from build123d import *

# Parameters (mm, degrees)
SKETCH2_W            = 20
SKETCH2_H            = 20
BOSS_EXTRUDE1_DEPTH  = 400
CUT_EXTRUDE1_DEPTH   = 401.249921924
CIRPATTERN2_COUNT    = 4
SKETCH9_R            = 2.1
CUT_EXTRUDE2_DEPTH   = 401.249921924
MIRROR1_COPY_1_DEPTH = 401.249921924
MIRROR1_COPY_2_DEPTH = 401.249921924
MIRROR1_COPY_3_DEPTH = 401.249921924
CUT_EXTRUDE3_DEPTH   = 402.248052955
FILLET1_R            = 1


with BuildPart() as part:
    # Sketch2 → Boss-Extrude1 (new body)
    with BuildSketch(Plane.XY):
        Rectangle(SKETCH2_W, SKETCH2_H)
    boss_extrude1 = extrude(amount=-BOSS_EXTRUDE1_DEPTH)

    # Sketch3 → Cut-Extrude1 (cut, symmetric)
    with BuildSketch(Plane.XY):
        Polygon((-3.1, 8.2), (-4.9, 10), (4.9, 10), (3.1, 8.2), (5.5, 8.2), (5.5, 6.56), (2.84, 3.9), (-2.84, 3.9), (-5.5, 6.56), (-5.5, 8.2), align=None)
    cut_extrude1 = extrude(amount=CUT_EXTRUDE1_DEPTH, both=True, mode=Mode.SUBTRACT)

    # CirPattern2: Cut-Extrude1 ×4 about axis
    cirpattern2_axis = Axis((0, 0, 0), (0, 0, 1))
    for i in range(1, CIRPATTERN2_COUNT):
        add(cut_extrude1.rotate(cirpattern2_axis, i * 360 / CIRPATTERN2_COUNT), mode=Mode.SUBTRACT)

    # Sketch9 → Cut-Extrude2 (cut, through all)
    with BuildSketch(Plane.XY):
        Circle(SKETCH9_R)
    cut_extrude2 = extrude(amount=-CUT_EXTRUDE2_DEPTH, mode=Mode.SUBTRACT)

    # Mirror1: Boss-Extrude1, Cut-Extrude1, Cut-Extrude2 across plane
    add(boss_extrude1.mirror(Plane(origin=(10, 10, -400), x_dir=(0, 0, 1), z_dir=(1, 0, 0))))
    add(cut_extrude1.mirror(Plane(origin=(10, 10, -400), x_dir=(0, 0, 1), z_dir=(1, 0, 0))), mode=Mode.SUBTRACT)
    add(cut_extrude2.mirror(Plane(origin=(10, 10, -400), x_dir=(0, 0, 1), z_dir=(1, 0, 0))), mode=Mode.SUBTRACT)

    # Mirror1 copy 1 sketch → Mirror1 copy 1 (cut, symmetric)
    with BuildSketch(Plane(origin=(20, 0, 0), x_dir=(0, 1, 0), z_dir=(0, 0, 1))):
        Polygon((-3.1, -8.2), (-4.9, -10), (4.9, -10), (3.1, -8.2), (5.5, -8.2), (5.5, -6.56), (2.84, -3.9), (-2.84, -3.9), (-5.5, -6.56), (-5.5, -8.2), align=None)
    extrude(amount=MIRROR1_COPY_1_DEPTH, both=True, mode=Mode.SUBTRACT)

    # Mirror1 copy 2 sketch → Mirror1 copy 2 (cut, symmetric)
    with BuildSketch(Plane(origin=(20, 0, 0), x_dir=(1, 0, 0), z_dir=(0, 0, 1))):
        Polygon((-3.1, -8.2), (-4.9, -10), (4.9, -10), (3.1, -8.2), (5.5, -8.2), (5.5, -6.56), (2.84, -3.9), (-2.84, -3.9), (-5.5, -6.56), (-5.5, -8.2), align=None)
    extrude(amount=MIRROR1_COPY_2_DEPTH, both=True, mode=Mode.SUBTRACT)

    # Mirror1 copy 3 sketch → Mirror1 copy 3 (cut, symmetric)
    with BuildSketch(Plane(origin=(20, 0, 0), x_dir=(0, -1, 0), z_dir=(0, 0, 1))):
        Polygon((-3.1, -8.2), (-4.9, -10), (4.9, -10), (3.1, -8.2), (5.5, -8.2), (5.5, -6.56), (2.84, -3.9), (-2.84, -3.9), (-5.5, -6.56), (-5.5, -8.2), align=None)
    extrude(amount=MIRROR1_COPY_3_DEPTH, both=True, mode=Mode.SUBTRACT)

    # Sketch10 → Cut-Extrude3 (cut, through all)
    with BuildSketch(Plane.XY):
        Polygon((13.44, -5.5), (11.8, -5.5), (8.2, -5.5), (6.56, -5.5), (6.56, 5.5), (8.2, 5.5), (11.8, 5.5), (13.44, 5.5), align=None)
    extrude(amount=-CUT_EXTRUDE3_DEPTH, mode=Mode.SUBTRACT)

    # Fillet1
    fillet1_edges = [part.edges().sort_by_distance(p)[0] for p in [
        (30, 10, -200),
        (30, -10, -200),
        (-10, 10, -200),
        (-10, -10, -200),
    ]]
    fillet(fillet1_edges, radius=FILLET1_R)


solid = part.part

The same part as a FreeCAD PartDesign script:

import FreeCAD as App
import Part
import Sketcher
from FreeCAD import Vector
Q = App.Units.Quantity


def edges_at(feature, points):
    """Names of the edges that pass closest to the given points."""
    edges = feature.Shape.Edges
    near = lambda p: min(range(len(edges)), key=lambda i: edges[i].distToShape(Part.Vertex(*p))[0])
    return sorted({f"Edge{near(p) + 1}" for p in points})


def add_polygon(sketch, points):
    """Adds a closed chain of lines whose ends are joined by coincident constraints."""
    first, n = sketch.GeometryCount, len(points)
    for a, b in zip(points, points[1:] + points[:1]):
        sketch.addGeometry(Part.LineSegment(App.Vector(*a, 0), App.Vector(*b, 0)), False)
    for i in range(n):
        sketch.addConstraint(Sketcher.Constraint("Coincident", first + i, 2, first + (i + 1) % n, 1))

doc = App.newDocument("Part")
body = doc.addObject("PartDesign::Body", "Body")

# Sketch on XY plane
sketch1 = body.newObject("Sketcher::SketchObject", "Sketch")
sketch1.AttachmentSupport = (doc.getObject("XY_Plane"), [""])
sketch1.MapMode = "FlatFace"
add_polygon(sketch1, [(-10, 10), (-10, -10), (10, -10), (10, 10)])  # lines 0-3
sketch1.addConstraint(Sketcher.Constraint("Vertical", 0))
sketch1.addConstraint(Sketcher.Constraint("Horizontal", 1))
sketch1.addConstraint(Sketcher.Constraint("Vertical", 2))
sketch1.addConstraint(Sketcher.Constraint("Horizontal", 3))
sketch1.addConstraint(Sketcher.Constraint("Symmetric", 0, 2, 2, 2, -1, 1))
sketch1.addConstraint(Sketcher.Constraint("Equal", 3, 0))
sketch1.addConstraint(Sketcher.Constraint("DistanceX", 1, 1, 1, 2, Q("20 mm")))
pad1 = body.newObject("PartDesign::Pad", "Pad")
pad1.Profile = sketch1
pad1.Length = 400
pad1.Reversed = True

# Sketch on XY plane
sketch2 = body.newObject("Sketcher::SketchObject", "Sketch001")
sketch2.AttachmentSupport = (doc.getObject("XY_Plane"), [""])
sketch2.MapMode = "FlatFace"
add_polygon(sketch2, [(-4.9, 10), (-3.1, 8.2), (-5.5, 8.2), (-5.5, 6.6), (-2.8, 3.9), (2.8, 3.9), (5.5, 6.6), (5.5, 8.2), (3.1, 8.2), (4.9, 10)])  # lines 0-9
sketch2.addConstraint(Sketcher.Constraint("Horizontal", 1))
sketch2.addConstraint(Sketcher.Constraint("Vertical", 2))
sketch2.addConstraint(Sketcher.Constraint("Horizontal", 4))
sketch2.addConstraint(Sketcher.Constraint("Vertical", 6))
sketch2.addConstraint(Sketcher.Constraint("Horizontal", 7))
sketch2.addConstraint(Sketcher.Constraint("Horizontal", 9))
sketch2.addConstraint(Sketcher.Constraint("Symmetric", 2, 2, 5, 2, -2))
sketch2.addConstraint(Sketcher.Constraint("Symmetric", 0, 2, 7, 2, -2))
sketch2.addConstraint(Sketcher.Constraint("Parallel", 0, 3))
sketch2.addConstraint(Sketcher.Constraint("Perpendicular", 3, 5))
sketch2.addConstraint(Sketcher.Constraint("Parallel", 5, 8))
sketch2.addConstraint(Sketcher.Constraint("Equal", 3, 5))
sketch2.addConstraint(Sketcher.Constraint("DistanceX", 1, 2, 1, 1, Q("2.4 mm")))
sketch2.addConstraint(Sketcher.Constraint("DistanceX", 9, 2, 9, 1, Q("9.8 mm")))
sketch2.addConstraint(Sketcher.Constraint("DistanceY", -1, 1, 8, 2, Q("10 mm")))
sketch2.addConstraint(Sketcher.Constraint("DistanceX", 2, 2, 5, 2, Q("11 mm")))
sketch2.addConstraint(Sketcher.Constraint("DistanceX", 4, 1, 4, 2, Q("5.68 mm")))
sketch2.addConstraint(Sketcher.Constraint("DistanceY", 2, 2, 2, 1, Q("1.64 mm")))
pocket1 = body.newObject("PartDesign::Pocket", "Pocket")
pocket1.Profile = sketch2
pocket1.Length = 802.499844
pocket1.Midplane = True
doc.recompute()

polarpattern = body.newObject("PartDesign::PolarPattern", "PolarPattern")
polarpattern.Originals = [pocket1]
polarpattern.Axis = (doc.getObject("Z_Axis"), [""])
polarpattern.Angle = 360
polarpattern.Occurrences = 4
body.Tip = polarpattern

# Sketch on XY plane
sketch3 = body.newObject("Sketcher::SketchObject", "Sketch002")
sketch3.AttachmentSupport = (doc.getObject("XY_Plane"), [""])
sketch3.MapMode = "FlatFace"
sketch3.addGeometry(Part.Circle(Vector(0, 0, 0), Vector(0, 0, 1), 2.1), False)
sketch3.addConstraint(Sketcher.Constraint("Coincident", 0, 3, -1, 1))
sketch3.addConstraint(Sketcher.Constraint("Diameter", 0, Q("4.2 mm")))
pocket2 = body.newObject("PartDesign::Pocket", "Pocket001")
pocket2.Profile = sketch3
pocket2.Type = "ThroughAll"
doc.recompute()

datumplane = body.newObject("PartDesign::Plane", "DatumPlane")
datumplane.AttachmentSupport = (doc.getObject("YZ_Plane"), [""])
datumplane.MapMode = "FlatFace"
datumplane.AttachmentOffset = App.Placement(Vector(0, 0, 10), App.Rotation())
mirrored = body.newObject("PartDesign::Mirrored", "Mirrored")
mirrored.Originals = [pad1, pocket1, pocket2]
mirrored.MirrorPlane = (datumplane, [""])
body.Tip = mirrored

# Sketch on XY plane
sketch4 = body.newObject("Sketcher::SketchObject", "Sketch003")
sketch4.AttachmentSupport = (doc.getObject("XY_Plane"), [""])
sketch4.MapMode = "FlatFace"
add_polygon(sketch4, [(28.2, -3.1), (30, -4.9), (30, 4.9), (28.2, 3.1), (28.2, 5.5), (26.6, 5.5), (23.9, 2.8), (23.9, -2.8), (26.6, -5.5), (28.2, -5.5)])  # lines 0-9
sketch4.addConstraint(Sketcher.Constraint("Vertical", 1))
sketch4.addConstraint(Sketcher.Constraint("Vertical", 3))
sketch4.addConstraint(Sketcher.Constraint("Horizontal", 4))
sketch4.addConstraint(Sketcher.Constraint("Vertical", 6))
sketch4.addConstraint(Sketcher.Constraint("Horizontal", 8))
sketch4.addConstraint(Sketcher.Constraint("Vertical", 9))
sketch4.addConstraint(Sketcher.Constraint("Symmetric", 4, 2, 7, 2, -1))
sketch4.addConstraint(Sketcher.Constraint("Symmetric", 2, 2, 9, 2, -1))
sketch4.addConstraint(Sketcher.Constraint("Perpendicular", 0, 2))
sketch4.addConstraint(Sketcher.Constraint("Parallel", 2, 5))
sketch4.addConstraint(Sketcher.Constraint("Perpendicular", 5, 7))
sketch4.addConstraint(Sketcher.Constraint("Equal", 0, 2))
sketch4.addConstraint(Sketcher.Constraint("DistanceY", 1, 1, 1, 2, Q("9.8 mm")))
sketch4.addConstraint(Sketcher.Constraint("DistanceY", 3, 1, 3, 2, Q("2.4 mm")))
sketch4.addConstraint(Sketcher.Constraint("DistanceX", -1, 1, 0, 2, Q("30 mm")))
sketch4.addConstraint(Sketcher.Constraint("DistanceY", 0, 2, 2, 2, Q("8 mm")))
sketch4.addConstraint(Sketcher.Constraint("DistanceX", 4, 2, 4, 1, Q("1.64 mm")))
sketch4.addConstraint(Sketcher.Constraint("DistanceY", 6, 2, 6, 1, Q("5.68 mm")))
pocket3 = body.newObject("PartDesign::Pocket", "Pocket002")
pocket3.Profile = sketch4
pocket3.Length = 802.499844
pocket3.Midplane = True

# Sketch on XY plane
sketch5 = body.newObject("Sketcher::SketchObject", "Sketch004")
sketch5.AttachmentSupport = (doc.getObject("XY_Plane"), [""])
sketch5.MapMode = "FlatFace"
add_polygon(sketch5, [(16.9, -8.2), (15.1, -10), (24.9, -10), (23.1, -8.2), (25.5, -8.2), (25.5, -6.6), (22.8, -3.9), (17.2, -3.9), (14.5, -6.6), (14.5, -8.2)])  # lines 0-9
sketch5.addConstraint(Sketcher.Constraint("Horizontal", 1))
sketch5.addConstraint(Sketcher.Constraint("Horizontal", 3))
sketch5.addConstraint(Sketcher.Constraint("Vertical", 4))
sketch5.addConstraint(Sketcher.Constraint("Horizontal", 6))
sketch5.addConstraint(Sketcher.Constraint("Vertical", 8))
sketch5.addConstraint(Sketcher.Constraint("Horizontal", 9))
sketch5.addConstraint(Sketcher.Constraint("Perpendicular", 0, 2))
sketch5.addConstraint(Sketcher.Constraint("Parallel", 2, 5))
sketch5.addConstraint(Sketcher.Constraint("Perpendicular", 5, 7))
sketch5.addConstraint(Sketcher.Constraint("Horizontal", 4, 2, 7, 2))
sketch5.addConstraint(Sketcher.Constraint("Horizontal", 3, 2, 8, 2))
sketch5.addConstraint(Sketcher.Constraint("Equal", 3, 9))
sketch5.addConstraint(Sketcher.Constraint("Equal", 0, 2))
sketch5.addConstraint(Sketcher.Constraint("DistanceX", 1, 1, 1, 2, Q("9.8 mm")))
sketch5.addConstraint(Sketcher.Constraint("DistanceX", 3, 1, 3, 2, Q("2.4 mm")))
sketch5.addConstraint(Sketcher.Constraint("DistanceY", 0, 2, -1, 1, Q("10 mm")))
sketch5.addConstraint(Sketcher.Constraint("DistanceX", 0, 2, 2, 2, Q("8 mm")))
sketch5.addConstraint(Sketcher.Constraint("DistanceX", 6, 2, 6, 1, Q("5.68 mm")))
sketch5.addConstraint(Sketcher.Constraint("DistanceY", 4, 1, 4, 2, Q("1.64 mm")))
sketch5.addConstraint(Sketcher.Constraint("DistanceX", -1, 1, 0, 2, Q("15.1 mm")))
pocket4 = body.newObject("PartDesign::Pocket", "Pocket003")
pocket4.Profile = sketch5
pocket4.Length = 802.499844
pocket4.Midplane = True

# Sketch on XY plane
sketch6 = body.newObject("Sketcher::SketchObject", "Sketch005")
sketch6.AttachmentSupport = (doc.getObject("XY_Plane"), [""])
sketch6.MapMode = "FlatFace"
add_polygon(sketch6, [(11.8, 3.1), (10, 4.9), (10, -4.9), (11.8, -3.1), (11.8, -5.5), (13.4, -5.5), (16.1, -2.8), (16.1, 2.8), (13.4, 5.5), (11.8, 5.5)])  # lines 0-9
sketch6.addConstraint(Sketcher.Constraint("Vertical", 1))
sketch6.addConstraint(Sketcher.Constraint("Vertical", 3))
sketch6.addConstraint(Sketcher.Constraint("Horizontal", 4))
sketch6.addConstraint(Sketcher.Constraint("Vertical", 6))
sketch6.addConstraint(Sketcher.Constraint("Horizontal", 8))
sketch6.addConstraint(Sketcher.Constraint("Vertical", 9))
sketch6.addConstraint(Sketcher.Constraint("Symmetric", 4, 2, 7, 2, -1))
sketch6.addConstraint(Sketcher.Constraint("Symmetric", 2, 2, 9, 2, -1))
sketch6.addConstraint(Sketcher.Constraint("Perpendicular", 0, 2))
sketch6.addConstraint(Sketcher.Constraint("Parallel", 2, 5))
sketch6.addConstraint(Sketcher.Constraint("Perpendicular", 5, 7))
sketch6.addConstraint(Sketcher.Constraint("Equal", 0, 2))
sketch6.addConstraint(Sketcher.Constraint("DistanceY", 1, 2, 1, 1, Q("9.8 mm")))
sketch6.addConstraint(Sketcher.Constraint("DistanceY", 3, 2, 3, 1, Q("2.4 mm")))
sketch6.addConstraint(Sketcher.Constraint("DistanceX", -1, 1, 0, 2, Q("10 mm")))
sketch6.addConstraint(Sketcher.Constraint("DistanceY", 2, 2, 0, 2, Q("8 mm")))
sketch6.addConstraint(Sketcher.Constraint("DistanceX", 4, 1, 4, 2, Q("1.64 mm")))
sketch6.addConstraint(Sketcher.Constraint("DistanceY", 6, 1, 6, 2, Q("5.68 mm")))
pocket5 = body.newObject("PartDesign::Pocket", "Pocket004")
pocket5.Profile = sketch6
pocket5.Length = 802.499844
pocket5.Midplane = True

# Sketch on XY plane
sketch7 = body.newObject("Sketcher::SketchObject", "Sketch006")
sketch7.AttachmentSupport = (doc.getObject("XY_Plane"), [""])
sketch7.MapMode = "FlatFace"
add_polygon(sketch7, [(7, -6), (13, -6), (13, 6), (7, 6)])  # lines 0-3
sketch7.addConstraint(Sketcher.Constraint("Horizontal", 0))
sketch7.addConstraint(Sketcher.Constraint("Vertical", 1))
sketch7.addConstraint(Sketcher.Constraint("Horizontal", 2))
sketch7.addConstraint(Sketcher.Constraint("Vertical", 3))
sketch7.addConstraint(Sketcher.Constraint("DistanceY", 1, 1, 1, 2, Q("11 mm")))
sketch7.addConstraint(Sketcher.Constraint("DistanceX", 0, 1, 0, 2, Q("6.88 mm")))
sketch7.addConstraint(Sketcher.Constraint("DistanceY", 0, 2, -1, 1, Q("5.5 mm")))
sketch7.addConstraint(Sketcher.Constraint("DistanceX", -1, 1, 0, 2, Q("13.44 mm")))
pocket6 = body.newObject("PartDesign::Pocket", "Pocket005")
pocket6.Profile = sketch7
pocket6.Type = "ThroughAll"
doc.recompute()

fillet = body.newObject("PartDesign::Fillet", "Fillet")
fillet.Base = (pocket6, edges_at(pocket6, [
    (30, 10, -200),
    (30, -10, -200),
    (-10, 10, -200),
    (-10, -10, -200),
]))
fillet.Radius = 1

doc.recompute()
